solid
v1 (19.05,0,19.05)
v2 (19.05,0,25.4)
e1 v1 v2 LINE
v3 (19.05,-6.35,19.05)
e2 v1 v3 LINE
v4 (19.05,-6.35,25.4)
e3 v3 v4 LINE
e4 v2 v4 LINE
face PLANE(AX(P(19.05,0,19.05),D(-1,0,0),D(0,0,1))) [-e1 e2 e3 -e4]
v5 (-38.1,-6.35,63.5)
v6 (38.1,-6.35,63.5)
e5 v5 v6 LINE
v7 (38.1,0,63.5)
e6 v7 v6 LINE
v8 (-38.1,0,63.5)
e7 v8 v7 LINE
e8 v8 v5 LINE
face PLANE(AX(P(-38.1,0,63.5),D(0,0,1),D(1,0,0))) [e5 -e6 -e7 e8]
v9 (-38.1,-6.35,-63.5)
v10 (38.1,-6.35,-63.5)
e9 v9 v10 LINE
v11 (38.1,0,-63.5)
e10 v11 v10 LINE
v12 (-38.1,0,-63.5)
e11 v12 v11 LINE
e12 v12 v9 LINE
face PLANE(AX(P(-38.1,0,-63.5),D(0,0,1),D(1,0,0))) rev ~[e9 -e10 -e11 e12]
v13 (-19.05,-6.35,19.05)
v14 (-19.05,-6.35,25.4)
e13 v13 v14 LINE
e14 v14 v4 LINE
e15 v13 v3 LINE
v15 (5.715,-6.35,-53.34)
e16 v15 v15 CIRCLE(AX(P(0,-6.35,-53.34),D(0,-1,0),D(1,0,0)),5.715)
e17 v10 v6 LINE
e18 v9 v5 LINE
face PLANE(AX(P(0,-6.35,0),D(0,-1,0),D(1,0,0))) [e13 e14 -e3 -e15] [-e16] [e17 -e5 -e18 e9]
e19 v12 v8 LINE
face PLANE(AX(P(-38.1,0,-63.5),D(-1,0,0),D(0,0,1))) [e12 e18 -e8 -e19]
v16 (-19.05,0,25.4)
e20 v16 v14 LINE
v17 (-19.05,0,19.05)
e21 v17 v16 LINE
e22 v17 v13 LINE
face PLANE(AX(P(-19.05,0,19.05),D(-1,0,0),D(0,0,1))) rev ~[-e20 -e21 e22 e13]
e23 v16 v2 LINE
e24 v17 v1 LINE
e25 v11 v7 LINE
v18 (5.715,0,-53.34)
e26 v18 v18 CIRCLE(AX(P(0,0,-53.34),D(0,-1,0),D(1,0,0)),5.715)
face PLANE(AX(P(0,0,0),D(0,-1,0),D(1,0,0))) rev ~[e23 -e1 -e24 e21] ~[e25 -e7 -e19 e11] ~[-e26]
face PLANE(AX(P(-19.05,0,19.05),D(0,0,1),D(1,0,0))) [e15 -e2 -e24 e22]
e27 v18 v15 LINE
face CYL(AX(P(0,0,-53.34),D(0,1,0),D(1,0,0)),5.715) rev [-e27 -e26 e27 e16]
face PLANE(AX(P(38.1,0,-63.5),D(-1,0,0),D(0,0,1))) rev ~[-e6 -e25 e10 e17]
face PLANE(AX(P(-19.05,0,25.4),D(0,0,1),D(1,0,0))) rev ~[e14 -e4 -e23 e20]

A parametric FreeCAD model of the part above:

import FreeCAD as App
import Part
import Sketcher
from FreeCAD import Vector
Q = App.Units.Quantity


def add_polygon(sketch, points):
    """Adds a closed chain of lines whose ends are joined by coincident constraints."""
    first, n = sketch.GeometryCount, len(points)
    for a, b in zip(points, points[1:] + points[:1]):
        sketch.addGeometry(Part.LineSegment(App.Vector(*a, 0), App.Vector(*b, 0)), False)
    for i in range(n):
        sketch.addConstraint(Sketcher.Constraint("Coincident", first + i, 2, first + (i + 1) % n, 1))

doc = App.newDocument("Part")
body = doc.addObject("PartDesign::Body", "Body")

sketch1 = body.newObject("Sketcher::SketchObject", "Sketch")
sketch1.AttachmentSupport = (doc.getObject("XZ_Plane"), [""])
sketch1.MapMode = "FlatFace"
add_polygon(sketch1, [(-38, 64), (-38, -64), (38, -64), (38, 64)])
sketch1.addGeometry(Part.Circle(Vector(0, -53, 0), Vector(0, 0, 1), 6), False)
add_polygon(sketch1, [(19, 19), (-19, 19), (-19, 25), (19, 25)])
sketch1.addConstraint([
    Sketcher.Constraint("Vertical", 0),
    Sketcher.Constraint("Horizontal", 1),
    Sketcher.Constraint("Vertical", 2),
    Sketcher.Constraint("Horizontal", 3),
    Sketcher.Constraint("Horizontal", 5),
    Sketcher.Constraint("Vertical", 6),
    Sketcher.Constraint("Horizontal", 7),
    Sketcher.Constraint("Vertical", 8),
    Sketcher.Constraint("Symmetric", 0, 2, 2, 2, -1, 1),
    Sketcher.Constraint("PointOnObject", 4, 3, -2),
    Sketcher.Constraint("Diameter", 4, Q("0.45 in")),
    Sketcher.Constraint("DistanceX", 1, 1, 1, 2, Q("3 in")),
    Sketcher.Constraint("DistanceY", 0, 2, 0, 1, Q("5 in")),
    Sketcher.Constraint("DistanceX", 5, 2, 5, 1, Q("1.5 in")),
    Sketcher.Constraint("DistanceY", -1, 1, 6, 2, Q("1 in")),
    Sketcher.Constraint("DistanceY", 6, 1, 6, 2, Q("0.25 in")),
    Sketcher.Constraint("DistanceY", 4, 3, -1, 1, Q("2.1 in")),
    Sketcher.Constraint("DistanceX", 5, 2, -1, 1, Q("0.75 in")),
])
pad1 = body.newObject("PartDesign::Pad", "Pad")
pad1.Profile = sketch1
pad1.Length = Q("0.25 in")

doc.recompute()
